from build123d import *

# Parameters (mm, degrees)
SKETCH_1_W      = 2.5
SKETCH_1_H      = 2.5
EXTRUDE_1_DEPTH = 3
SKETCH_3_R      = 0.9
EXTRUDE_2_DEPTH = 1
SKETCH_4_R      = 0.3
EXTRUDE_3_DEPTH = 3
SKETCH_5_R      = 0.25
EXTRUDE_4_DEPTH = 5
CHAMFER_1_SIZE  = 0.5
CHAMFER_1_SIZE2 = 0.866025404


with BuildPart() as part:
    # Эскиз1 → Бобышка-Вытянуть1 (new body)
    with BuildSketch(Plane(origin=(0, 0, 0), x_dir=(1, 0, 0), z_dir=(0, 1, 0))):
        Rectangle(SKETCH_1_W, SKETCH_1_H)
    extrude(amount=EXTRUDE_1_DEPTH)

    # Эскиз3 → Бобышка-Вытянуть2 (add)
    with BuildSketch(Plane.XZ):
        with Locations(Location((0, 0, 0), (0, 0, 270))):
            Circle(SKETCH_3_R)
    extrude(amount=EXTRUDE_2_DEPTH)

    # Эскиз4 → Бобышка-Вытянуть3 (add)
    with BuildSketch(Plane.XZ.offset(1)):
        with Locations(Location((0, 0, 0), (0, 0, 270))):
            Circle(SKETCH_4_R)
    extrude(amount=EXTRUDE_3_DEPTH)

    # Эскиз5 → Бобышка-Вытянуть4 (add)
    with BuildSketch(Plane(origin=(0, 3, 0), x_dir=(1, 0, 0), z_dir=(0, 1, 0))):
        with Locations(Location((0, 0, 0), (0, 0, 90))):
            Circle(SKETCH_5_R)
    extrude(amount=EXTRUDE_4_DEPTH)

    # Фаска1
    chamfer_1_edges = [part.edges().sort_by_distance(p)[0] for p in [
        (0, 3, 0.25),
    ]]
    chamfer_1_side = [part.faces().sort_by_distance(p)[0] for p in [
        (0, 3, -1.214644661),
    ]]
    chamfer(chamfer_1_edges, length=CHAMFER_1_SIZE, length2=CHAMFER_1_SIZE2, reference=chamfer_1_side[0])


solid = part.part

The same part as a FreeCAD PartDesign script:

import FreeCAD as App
import Part
import Sketcher

V = App.Vector
Q = App.Units.Quantity


def edges_at(feature, points):
    """Names of the edges that pass closest to the given points."""
    edges = feature.Shape.Edges
    near = lambda p: min(range(len(edges)), key=lambda i: edges[i].distToShape(Part.Vertex(*p))[0])
    return sorted({f"Edge{near(p) + 1}" for p in points})


def add_polygon(sketch, points):
    """Adds a closed chain of lines whose ends are joined by coincident constraints."""
    first, n = sketch.GeometryCount, len(points)
    for a, b in zip(points, points[1:] + points[:1]):
        sketch.addGeometry(Part.LineSegment(App.Vector(*a, 0), App.Vector(*b, 0)), False)
    for i in range(n):
        sketch.addConstraint(Sketcher.Constraint("Coincident", first + i, 2, first + (i + 1) % n, 1))

doc = App.newDocument("Part")
body = doc.addObject("PartDesign::Body", "Body")

# Sketch on XZ plane
sketch1 = doc.addObject("Sketcher::SketchObject", "Sketch")
body.addObject(sketch1)
sketch1.AttachmentSupport = (doc.XZ_Plane, [""])
sketch1.MapMode = "FlatFace"
add_polygon(sketch1, [(-1.2, -1.2), (-1.2, 1.2), (1.2, 1.2), (1.2, -1.2)])  # lines 0-3
sketch1.addConstraint([
    Sketcher.Constraint("Vertical", 0),
    Sketcher.Constraint("Horizontal", 1),
    Sketcher.Constraint("Vertical", 2),
    Sketcher.Constraint("Horizontal", 3),
    Sketcher.Constraint("Symmetric", 0, 2, 2, 2, -1, 1),
    Sketcher.Constraint("Equal", 3, 0),
    Sketcher.Constraint("DistanceX", 1, 1, 1, 2, Q("2.5 mm")),
])
pad1 = doc.addObject("PartDesign::Pad", "Pad")
body.addObject(pad1)
pad1.Profile = sketch1
pad1.Length = 3
pad1.Reversed = True

# Sketch on XZ plane
sketch2 = doc.addObject("Sketcher::SketchObject", "Sketch001")
body.addObject(sketch2)
sketch2.AttachmentSupport = (doc.XZ_Plane, [""])
sketch2.MapMode = "FlatFace"
sketch2.addGeometry(Part.Circle(V(0, 0, 0), V(0, 0, 1), 0.9), False)
sketch2.addConstraint([
    Sketcher.Constraint("Coincident", 0, 3, -1, 1),
    Sketcher.Constraint("Diameter", 0, Q("1.8 mm")),
])
pad2 = doc.addObject("PartDesign::Pad", "Pad001")
body.addObject(pad2)
pad2.Profile = sketch2
pad2.Length = 1

# Sketch on XZ plane
sketch3 = doc.addObject("Sketcher::SketchObject", "Sketch002")
body.addObject(sketch3)
sketch3.AttachmentSupport = (doc.XZ_Plane, [""])
sketch3.MapMode = "FlatFace"
sketch3.AttachmentOffset = App.Placement(V(0, 0, 1), App.Rotation())
sketch3.addGeometry(Part.Circle(V(0, 0, 0), V(0, 0, 1), 0.3), False)
sketch3.addConstraint([
    Sketcher.Constraint("Coincident", 0, 3, -1, 1),
    Sketcher.Constraint("Diameter", 0, Q("0.6 mm")),
])
pad3 = doc.addObject("PartDesign::Pad", "Pad002")
body.addObject(pad3)
pad3.Profile = sketch3
pad3.Length = 3

# Sketch on XZ plane
sketch4 = doc.addObject("Sketcher::SketchObject", "Sketch003")
body.addObject(sketch4)
sketch4.AttachmentSupport = (doc.XZ_Plane, [""])
sketch4.MapMode = "FlatFace"
sketch4.AttachmentOffset = App.Placement(V(0, 0, -3), App.Rotation())
sketch4.addGeometry(Part.Circle(V(0, 0, 0), V(0, 0, 1), 0.25), False)
sketch4.addConstraint([
    Sketcher.Constraint("Coincident", 0, 3, -1, 1),
    Sketcher.Constraint("Diameter", 0, Q("0.5 mm")),
])
pad4 = doc.addObject("PartDesign::Pad", "Pad003")
body.addObject(pad4)
pad4.Profile = sketch4
pad4.Length = 5
pad4.Reversed = True
doc.recompute()

chamfer = doc.addObject("PartDesign::Chamfer", "Chamfer")
body.addObject(chamfer)
chamfer.Base = (pad4, edges_at(pad4, [(0, 3, 0.25)]))
chamfer.ChamferType = "Two distances"
chamfer.Size = 0.5
chamfer.Size2 = 0.866025

doc.recompute()
